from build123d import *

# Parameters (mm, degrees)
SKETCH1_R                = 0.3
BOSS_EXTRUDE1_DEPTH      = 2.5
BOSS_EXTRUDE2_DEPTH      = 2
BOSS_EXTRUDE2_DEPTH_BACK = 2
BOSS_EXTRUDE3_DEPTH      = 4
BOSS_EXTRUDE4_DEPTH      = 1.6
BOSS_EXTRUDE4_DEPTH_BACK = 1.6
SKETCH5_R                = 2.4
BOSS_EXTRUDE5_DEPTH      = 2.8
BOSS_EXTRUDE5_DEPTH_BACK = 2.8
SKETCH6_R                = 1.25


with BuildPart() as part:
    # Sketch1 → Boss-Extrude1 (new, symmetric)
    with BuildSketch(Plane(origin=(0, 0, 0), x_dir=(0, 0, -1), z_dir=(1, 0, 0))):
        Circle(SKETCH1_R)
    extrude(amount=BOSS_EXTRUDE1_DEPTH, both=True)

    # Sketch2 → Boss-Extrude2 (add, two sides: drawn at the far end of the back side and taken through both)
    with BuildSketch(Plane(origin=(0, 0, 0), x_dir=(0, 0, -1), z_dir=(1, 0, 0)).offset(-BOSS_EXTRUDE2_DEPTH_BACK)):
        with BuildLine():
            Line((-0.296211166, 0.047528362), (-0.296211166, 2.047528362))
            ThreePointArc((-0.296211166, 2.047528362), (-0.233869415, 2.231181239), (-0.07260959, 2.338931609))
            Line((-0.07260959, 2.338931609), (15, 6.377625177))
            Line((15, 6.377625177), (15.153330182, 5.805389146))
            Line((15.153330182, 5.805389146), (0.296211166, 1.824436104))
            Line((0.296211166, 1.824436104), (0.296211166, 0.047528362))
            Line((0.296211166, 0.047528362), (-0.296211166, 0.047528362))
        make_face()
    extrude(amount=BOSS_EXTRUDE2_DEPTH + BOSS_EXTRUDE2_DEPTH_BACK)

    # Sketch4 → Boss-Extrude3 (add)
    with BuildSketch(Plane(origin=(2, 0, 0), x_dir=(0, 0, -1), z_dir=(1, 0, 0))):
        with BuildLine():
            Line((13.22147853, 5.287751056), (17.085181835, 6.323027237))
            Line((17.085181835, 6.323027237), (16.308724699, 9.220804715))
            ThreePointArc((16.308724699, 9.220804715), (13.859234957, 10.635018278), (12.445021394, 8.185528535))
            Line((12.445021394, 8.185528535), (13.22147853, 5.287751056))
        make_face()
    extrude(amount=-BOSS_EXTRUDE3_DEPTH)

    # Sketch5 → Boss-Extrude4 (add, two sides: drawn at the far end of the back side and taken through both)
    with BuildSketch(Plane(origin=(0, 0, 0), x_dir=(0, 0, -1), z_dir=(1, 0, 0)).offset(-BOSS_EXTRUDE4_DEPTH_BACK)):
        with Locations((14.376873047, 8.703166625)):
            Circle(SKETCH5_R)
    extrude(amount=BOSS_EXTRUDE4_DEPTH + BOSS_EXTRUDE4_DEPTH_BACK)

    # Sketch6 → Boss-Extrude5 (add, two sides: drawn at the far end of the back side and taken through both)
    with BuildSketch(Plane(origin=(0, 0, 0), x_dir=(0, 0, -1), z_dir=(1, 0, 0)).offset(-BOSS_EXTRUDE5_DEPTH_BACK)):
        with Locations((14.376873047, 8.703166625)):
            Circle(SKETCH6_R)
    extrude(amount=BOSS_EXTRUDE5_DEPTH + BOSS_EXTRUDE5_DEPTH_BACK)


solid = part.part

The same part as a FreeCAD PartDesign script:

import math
import FreeCAD as App
import Part
import Sketcher

V = App.Vector
Q = App.Units.Quantity

doc = App.newDocument("Part")
body = doc.addObject("PartDesign::Body", "Body")

sketch1 = doc.addObject("Sketcher::SketchObject", "Sketch")
body.addObject(sketch1)
sketch1.AttachmentSupport = (doc.YZ_Plane, [""])
sketch1.MapMode = "FlatFace"
sketch1.addGeometry(Part.Circle(V(0, 0, 0), V(0, 0, 1), 0.3), False)
sketch1.addConstraint([
    Sketcher.Constraint("Coincident", 0, 3, -1, 1),
    Sketcher.Constraint("Diameter", 0, Q("0.6 mm")),
])
pad1 = doc.addObject("PartDesign::Pad", "Pad")
body.addObject(pad1)
pad1.Profile = sketch1
pad1.Length = 5
pad1.Midplane = True

sketch2 = doc.addObject("Sketcher::SketchObject", "Sketch001")
body.addObject(sketch2)
sketch2.AttachmentSupport = (doc.YZ_Plane, [""])
sketch2.MapMode = "FlatFace"
sketch2.addGeometry([
    Part.LineSegment(V(2.05, 0.3, 0), V(0.05, 0.3, 0)),
    Part.LineSegment(V(0.05, 0.3, 0), V(0.05, -0.3, 0)),
    Part.LineSegment(V(0.05, -0.3, 0), V(1.82, -0.3, 0)),
    Part.LineSegment(V(1.82, -0.3, 0), V(5.81, -15.15, 0)),
    Part.LineSegment(V(5.81, -15.15, 0), V(6.38, -15, 0)),
    Part.LineSegment(V(6.38, -15, 0), V(2.34, 0.07, 0)),
    Part.ArcOfCircle(Part.Circle(V(2.05, -0.01, 0), V(0, 0, 1), 0.3), math.radians(15), math.radians(90)),
], False)
sketch2.addConstraint([
    Sketcher.Constraint("Coincident", 0, 2, 1, 1),
    Sketcher.Constraint("Coincident", 1, 2, 2, 1),
    Sketcher.Constraint("Coincident", 2, 2, 3, 1),
    Sketcher.Constraint("Coincident", 3, 2, 4, 1),
    Sketcher.Constraint("Coincident", 4, 2, 5, 1),
    Sketcher.Constraint("Tangent", 5, 2, 6, 1),
    Sketcher.Constraint("Tangent", 6, 2, 0, 1),
    Sketcher.Constraint("Horizontal", 0),
    Sketcher.Constraint("Vertical", 1),
    Sketcher.Constraint("Horizontal", 2),
    Sketcher.Constraint("Perpendicular", 3, 4),
    Sketcher.Constraint("Perpendicular", 4, 5),
    Sketcher.Constraint("DistanceX", 0, 2, 0, 1, Q("2 mm")),
    Sketcher.Constraint("Angle", 3, Q("-75 deg")),
    Sketcher.Constraint("DistanceY", 4, 2, -1, 1, Q("15 mm")),
    Sketcher.Constraint("Radius", 6, Q("0.301683 mm")),
    Sketcher.Constraint("Distance", 3, Q("15.381221 mm")),
    Sketcher.Constraint("DistanceX", 2, 1, 2, 2, Q("1.776908 mm")),
    Sketcher.Constraint("DistanceY", 1, 2, 1, 1, Q("0.592422 mm")),
    Sketcher.Constraint("DistanceX", -1, 1, 6, 3, Q("2.047528 mm")),
])
pad2 = doc.addObject("PartDesign::Pad", "Pad001")
body.addObject(pad2)
pad2.Profile = sketch2
pad2.Type = "TwoLengths"
pad2.Length = 2
pad2.Length2 = 2

sketch3 = doc.addObject("Sketcher::SketchObject", "Sketch002")
body.addObject(sketch3)
sketch3.AttachmentSupport = (doc.YZ_Plane, [""])
sketch3.MapMode = "FlatFace"
sketch3.AttachmentOffset = App.Placement(V(0, 0, 2), App.Rotation())
sketch3.addGeometry([
    Part.LineSegment(V(5.3, -13.2, 0), V(6.3, -17.1, 0)),
    Part.LineSegment(V(6.3, -17.1, 0), V(9.2, -16.3, 0)),
    Part.ArcOfCircle(Part.Circle(V(8.7, -14.4, 0), V(0, 0, 1), 2), math.radians(-75), math.radians(105)),
    Part.LineSegment(V(8.2, -12.4, 0), V(5.3, -13.2, 0)),
], False)
sketch3.addConstraint([
    Sketcher.Constraint("Coincident", 0, 2, 1, 1),
    Sketcher.Constraint("Tangent", 1, 2, 2, 1),
    Sketcher.Constraint("Tangent", 2, 2, 3, 1),
    Sketcher.Constraint("Coincident", 3, 2, 0, 1),
    Sketcher.Constraint("Perpendicular", 0, 1),
    Sketcher.Constraint("Parallel", 1, 3),
    Sketcher.Constraint("Radius", 2, Q("2 mm")),
    Sketcher.Constraint("Angle", 0, Q("-75 deg")),
    Sketcher.Constraint("Distance", 1, Q("3 mm")),
    Sketcher.Constraint("DistanceY", 0, 2, -1, 1, Q("17.085182 mm")),
    Sketcher.Constraint("DistanceX", -1, 1, 2, 2, Q("8.185529 mm")),
])
pad3 = doc.addObject("PartDesign::Pad", "Pad002")
body.addObject(pad3)
pad3.Profile = sketch3
pad3.Length = 4
pad3.Reversed = True

sketch4 = doc.addObject("Sketcher::SketchObject", "Sketch003")
body.addObject(sketch4)
sketch4.AttachmentSupport = (doc.YZ_Plane, [""])
sketch4.MapMode = "FlatFace"
sketch4.addGeometry(Part.Circle(V(8.7, -14.4, 0), V(0, 0, 1), 2.4), False)
sketch4.addConstraint([
    Sketcher.Constraint("Diameter", 0, Q("4.8 mm")),
    Sketcher.Constraint("DistanceX", -1, 1, 0, 3, Q("8.703167 mm")),
    Sketcher.Constraint("DistanceY", 0, 3, -1, 1, Q("14.376873 mm")),
])
pad4 = doc.addObject("PartDesign::Pad", "Pad003")
body.addObject(pad4)
pad4.Profile = sketch4
pad4.Type = "TwoLengths"
pad4.Length = 1.6
pad4.Length2 = 1.6

sketch5 = doc.addObject("Sketcher::SketchObject", "Sketch004")
body.addObject(sketch5)
sketch5.AttachmentSupport = (doc.YZ_Plane, [""])
sketch5.MapMode = "FlatFace"
sketch5.addGeometry(Part.Circle(V(8.7, -14.4, 0), V(0, 0, 1), 1.2), False)
sketch5.addConstraint([
    Sketcher.Constraint("Diameter", 0, Q("2.5 mm")),
    Sketcher.Constraint("DistanceX", -1, 1, 0, 3, Q("8.703167 mm")),
    Sketcher.Constraint("DistanceY", 0, 3, -1, 1, Q("14.376873 mm")),
])
pad5 = doc.addObject("PartDesign::Pad", "Pad004")
body.addObject(pad5)
pad5.Profile = sketch5
pad5.Type = "TwoLengths"
pad5.Length = 2.8
pad5.Length2 = 2.8

doc.recompute()
